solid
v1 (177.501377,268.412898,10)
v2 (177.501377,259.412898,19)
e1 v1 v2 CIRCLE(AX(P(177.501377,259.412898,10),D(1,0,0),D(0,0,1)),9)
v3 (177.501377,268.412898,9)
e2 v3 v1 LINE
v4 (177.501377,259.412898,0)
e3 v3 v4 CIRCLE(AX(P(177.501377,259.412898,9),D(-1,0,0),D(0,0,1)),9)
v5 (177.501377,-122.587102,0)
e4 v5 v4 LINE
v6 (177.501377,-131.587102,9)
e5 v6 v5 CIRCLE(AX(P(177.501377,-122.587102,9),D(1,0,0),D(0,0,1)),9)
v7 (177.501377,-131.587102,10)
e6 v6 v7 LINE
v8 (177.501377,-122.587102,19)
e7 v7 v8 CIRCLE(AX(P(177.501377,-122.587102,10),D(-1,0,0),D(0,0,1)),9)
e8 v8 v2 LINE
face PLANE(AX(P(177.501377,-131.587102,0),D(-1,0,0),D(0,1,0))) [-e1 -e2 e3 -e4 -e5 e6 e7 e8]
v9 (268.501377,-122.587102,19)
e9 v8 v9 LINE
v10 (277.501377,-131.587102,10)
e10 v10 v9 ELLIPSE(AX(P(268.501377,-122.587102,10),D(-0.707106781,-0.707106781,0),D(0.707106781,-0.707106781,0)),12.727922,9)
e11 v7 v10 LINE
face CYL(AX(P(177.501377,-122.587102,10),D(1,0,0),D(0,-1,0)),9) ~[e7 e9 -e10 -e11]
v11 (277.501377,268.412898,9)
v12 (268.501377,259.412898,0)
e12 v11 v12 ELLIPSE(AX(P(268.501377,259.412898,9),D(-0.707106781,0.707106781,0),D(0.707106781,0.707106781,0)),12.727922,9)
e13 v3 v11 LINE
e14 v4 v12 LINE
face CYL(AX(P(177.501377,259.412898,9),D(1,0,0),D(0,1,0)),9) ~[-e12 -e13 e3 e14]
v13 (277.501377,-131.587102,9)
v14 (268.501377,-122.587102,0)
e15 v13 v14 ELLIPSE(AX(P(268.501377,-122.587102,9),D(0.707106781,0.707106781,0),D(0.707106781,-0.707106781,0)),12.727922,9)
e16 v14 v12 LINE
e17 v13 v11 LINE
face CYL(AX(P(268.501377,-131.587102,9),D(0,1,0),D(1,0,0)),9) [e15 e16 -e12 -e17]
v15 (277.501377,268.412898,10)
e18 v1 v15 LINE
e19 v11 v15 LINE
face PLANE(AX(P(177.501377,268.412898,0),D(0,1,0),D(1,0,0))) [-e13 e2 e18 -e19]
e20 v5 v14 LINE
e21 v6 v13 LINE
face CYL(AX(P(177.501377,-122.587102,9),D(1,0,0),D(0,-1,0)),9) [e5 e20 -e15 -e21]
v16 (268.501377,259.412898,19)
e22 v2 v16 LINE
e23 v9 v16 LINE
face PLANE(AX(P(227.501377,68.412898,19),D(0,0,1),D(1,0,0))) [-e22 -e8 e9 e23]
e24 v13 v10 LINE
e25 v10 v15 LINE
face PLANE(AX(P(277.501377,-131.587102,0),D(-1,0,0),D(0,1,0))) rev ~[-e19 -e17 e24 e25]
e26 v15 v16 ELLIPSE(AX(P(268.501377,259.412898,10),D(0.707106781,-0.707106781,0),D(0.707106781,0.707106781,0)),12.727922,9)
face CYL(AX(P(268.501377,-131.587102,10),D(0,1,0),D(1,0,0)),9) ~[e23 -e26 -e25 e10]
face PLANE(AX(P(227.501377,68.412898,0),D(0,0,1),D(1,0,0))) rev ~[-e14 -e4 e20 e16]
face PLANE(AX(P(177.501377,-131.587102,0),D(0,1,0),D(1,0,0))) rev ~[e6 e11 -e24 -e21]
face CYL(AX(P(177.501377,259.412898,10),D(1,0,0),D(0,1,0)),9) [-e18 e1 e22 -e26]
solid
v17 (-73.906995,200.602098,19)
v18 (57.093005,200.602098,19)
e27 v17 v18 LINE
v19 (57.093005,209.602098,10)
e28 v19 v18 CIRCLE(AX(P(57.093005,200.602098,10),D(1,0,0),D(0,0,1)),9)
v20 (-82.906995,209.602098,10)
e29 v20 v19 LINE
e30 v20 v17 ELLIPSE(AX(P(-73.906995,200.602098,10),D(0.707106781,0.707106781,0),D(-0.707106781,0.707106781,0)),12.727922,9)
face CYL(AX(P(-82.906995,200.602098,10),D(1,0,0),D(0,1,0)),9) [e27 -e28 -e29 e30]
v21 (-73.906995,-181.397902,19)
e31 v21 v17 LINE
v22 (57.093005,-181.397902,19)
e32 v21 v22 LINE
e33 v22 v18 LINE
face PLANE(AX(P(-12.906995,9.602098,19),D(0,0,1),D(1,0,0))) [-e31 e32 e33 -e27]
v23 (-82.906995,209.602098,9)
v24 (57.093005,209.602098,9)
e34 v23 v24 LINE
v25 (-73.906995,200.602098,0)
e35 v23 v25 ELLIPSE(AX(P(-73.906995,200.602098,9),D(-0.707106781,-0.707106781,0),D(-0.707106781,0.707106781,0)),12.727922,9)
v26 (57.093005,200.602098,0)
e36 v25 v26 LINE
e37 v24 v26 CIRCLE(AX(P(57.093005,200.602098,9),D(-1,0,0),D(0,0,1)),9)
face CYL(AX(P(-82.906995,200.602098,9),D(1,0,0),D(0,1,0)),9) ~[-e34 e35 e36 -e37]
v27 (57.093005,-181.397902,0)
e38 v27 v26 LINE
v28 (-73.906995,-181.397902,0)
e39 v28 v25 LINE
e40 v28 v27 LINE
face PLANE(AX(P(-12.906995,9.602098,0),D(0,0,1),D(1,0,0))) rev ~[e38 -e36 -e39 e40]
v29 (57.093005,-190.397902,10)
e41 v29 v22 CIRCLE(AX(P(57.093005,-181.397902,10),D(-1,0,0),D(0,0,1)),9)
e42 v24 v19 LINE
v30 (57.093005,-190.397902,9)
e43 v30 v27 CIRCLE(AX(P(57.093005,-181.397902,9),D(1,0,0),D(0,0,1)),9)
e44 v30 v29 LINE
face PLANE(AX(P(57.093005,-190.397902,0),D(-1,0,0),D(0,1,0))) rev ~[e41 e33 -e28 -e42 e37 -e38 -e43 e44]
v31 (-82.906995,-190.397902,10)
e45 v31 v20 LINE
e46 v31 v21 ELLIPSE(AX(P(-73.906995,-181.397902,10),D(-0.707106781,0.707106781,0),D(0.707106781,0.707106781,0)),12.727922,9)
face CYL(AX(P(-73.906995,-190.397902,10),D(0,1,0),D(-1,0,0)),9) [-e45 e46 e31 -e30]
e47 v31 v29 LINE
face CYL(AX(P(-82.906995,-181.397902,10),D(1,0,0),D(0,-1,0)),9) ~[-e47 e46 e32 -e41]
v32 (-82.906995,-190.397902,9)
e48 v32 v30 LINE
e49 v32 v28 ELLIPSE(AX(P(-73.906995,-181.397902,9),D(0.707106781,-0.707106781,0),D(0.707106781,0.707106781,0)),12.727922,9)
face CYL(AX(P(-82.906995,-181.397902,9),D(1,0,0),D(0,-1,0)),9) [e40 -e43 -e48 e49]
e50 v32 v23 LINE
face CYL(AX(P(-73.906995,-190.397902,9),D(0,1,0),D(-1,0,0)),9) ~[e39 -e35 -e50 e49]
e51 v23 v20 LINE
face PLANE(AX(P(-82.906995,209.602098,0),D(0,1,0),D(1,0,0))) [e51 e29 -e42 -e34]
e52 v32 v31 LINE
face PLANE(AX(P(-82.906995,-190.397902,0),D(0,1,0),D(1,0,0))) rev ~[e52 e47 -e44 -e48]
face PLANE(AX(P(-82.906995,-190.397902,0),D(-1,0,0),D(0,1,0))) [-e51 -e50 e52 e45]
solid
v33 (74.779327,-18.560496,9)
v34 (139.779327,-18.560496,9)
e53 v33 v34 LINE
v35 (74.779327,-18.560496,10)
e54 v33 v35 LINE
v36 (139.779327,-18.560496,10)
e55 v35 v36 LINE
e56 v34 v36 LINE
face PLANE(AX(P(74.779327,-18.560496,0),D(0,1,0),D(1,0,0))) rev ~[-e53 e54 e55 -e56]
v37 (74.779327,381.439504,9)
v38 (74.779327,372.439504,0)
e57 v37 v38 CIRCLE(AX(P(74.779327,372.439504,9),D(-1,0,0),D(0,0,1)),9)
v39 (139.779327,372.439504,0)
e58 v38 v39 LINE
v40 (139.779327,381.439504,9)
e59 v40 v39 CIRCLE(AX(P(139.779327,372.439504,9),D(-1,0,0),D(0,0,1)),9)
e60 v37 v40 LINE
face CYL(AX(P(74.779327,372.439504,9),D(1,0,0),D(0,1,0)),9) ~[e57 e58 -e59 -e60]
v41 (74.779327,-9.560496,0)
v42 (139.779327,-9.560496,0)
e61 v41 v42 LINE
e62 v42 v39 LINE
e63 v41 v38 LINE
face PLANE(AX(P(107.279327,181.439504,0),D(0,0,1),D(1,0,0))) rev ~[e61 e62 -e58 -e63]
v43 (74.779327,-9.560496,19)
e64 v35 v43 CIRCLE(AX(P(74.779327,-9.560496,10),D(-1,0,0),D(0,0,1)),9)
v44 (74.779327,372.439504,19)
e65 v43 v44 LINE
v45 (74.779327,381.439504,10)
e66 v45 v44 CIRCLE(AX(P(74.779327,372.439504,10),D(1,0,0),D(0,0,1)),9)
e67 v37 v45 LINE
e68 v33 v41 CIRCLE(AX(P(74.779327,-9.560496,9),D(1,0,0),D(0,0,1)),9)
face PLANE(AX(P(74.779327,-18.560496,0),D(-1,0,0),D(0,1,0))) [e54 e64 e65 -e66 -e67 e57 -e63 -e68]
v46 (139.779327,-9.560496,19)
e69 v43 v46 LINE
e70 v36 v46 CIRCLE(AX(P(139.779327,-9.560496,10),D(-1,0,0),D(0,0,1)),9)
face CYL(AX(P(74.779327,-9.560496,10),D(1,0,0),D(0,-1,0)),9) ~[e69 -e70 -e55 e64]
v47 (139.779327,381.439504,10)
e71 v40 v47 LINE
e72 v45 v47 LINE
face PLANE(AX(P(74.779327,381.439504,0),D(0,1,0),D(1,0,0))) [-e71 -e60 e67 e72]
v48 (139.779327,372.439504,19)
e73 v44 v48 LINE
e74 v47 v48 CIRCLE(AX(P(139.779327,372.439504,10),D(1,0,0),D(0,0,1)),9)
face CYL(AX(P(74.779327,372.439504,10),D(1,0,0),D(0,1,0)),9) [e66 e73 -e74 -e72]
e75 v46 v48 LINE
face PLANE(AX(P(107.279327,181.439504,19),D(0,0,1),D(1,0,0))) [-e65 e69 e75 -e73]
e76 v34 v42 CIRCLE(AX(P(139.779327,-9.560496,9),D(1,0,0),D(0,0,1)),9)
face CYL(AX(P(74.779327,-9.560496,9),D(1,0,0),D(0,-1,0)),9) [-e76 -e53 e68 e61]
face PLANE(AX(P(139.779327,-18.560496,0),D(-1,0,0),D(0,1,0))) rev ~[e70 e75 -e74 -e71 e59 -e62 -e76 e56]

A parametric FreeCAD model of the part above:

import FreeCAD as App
import Part
import Sketcher
Q = App.Units.Quantity


def edges_at(feature, points):
    """Names of the edges that pass closest to the given points."""
    edges = feature.Shape.Edges
    near = lambda p: min(range(len(edges)), key=lambda i: edges[i].distToShape(Part.Vertex(*p))[0])
    return sorted({f"Edge{near(p) + 1}" for p in points})


def add_polygon(sketch, points):
    """Adds a closed chain of lines whose ends are joined by coincident constraints."""
    first, n = sketch.GeometryCount, len(points)
    for a, b in zip(points, points[1:] + points[:1]):
        sketch.addGeometry(Part.LineSegment(App.Vector(*a, 0), App.Vector(*b, 0)), False)
    for i in range(n):
        sketch.addConstraint(Sketcher.Constraint("Coincident", first + i, 2, first + (i + 1) % n, 1))

doc = App.newDocument("Part")
body = doc.addObject("PartDesign::Body", "Body")

# Sketch on XY plane
sketch1 = body.newObject("Sketcher::SketchObject", "Sketch")
sketch1.AttachmentSupport = (doc.getObject("XY_Plane"), [""])
sketch1.MapMode = "FlatFace"
add_polygon(sketch1, [(-83, 210), (-83, -190), (57, -190), (57, 210)])  # lines 0-3
sketch1.addConstraint([
    Sketcher.Constraint("Vertical", 0),
    Sketcher.Constraint("Horizontal", 1),
    Sketcher.Constraint("Vertical", 2),
    Sketcher.Constraint("Horizontal", 3),
    Sketcher.Constraint("DistanceX", 1, 1, 1, 2, Q("140 mm")),
    Sketcher.Constraint("DistanceY", 0, 2, 0, 1, Q("400 mm")),
    Sketcher.Constraint("DistanceY", 0, 2, -1, 1, Q("190.397902 mm")),
    Sketcher.Constraint("DistanceX", 0, 2, -1, 1, Q("82.906995 mm")),
])
pad1 = body.newObject("PartDesign::Pad", "Pad")
pad1.Profile = sketch1
pad1.Length = 19
doc.recompute()

fillet = body.newObject("PartDesign::Fillet", "Fillet")
fillet.Base = (pad1, edges_at(pad1, [
    (-12.907, -190.398, 19),
    (-82.907, 9.602, 19),
    (-12.907, 209.602, 19),
    (-12.907, -190.398, 0),
    (-82.907, 9.602, 0),
    (-12.907, 209.602, 0),
]))
fillet.Radius = 9
body2 = doc.addObject("PartDesign::Body", "Body001")

# Sketch on XY plane
sketch2 = body2.newObject("Sketcher::SketchObject", "Sketch001")
sketch2.AttachmentSupport = (doc.getObject("XY_Plane001"), [""])
sketch2.MapMode = "FlatFace"
add_polygon(sketch2, [(75, 381), (75, -19), (140, -19), (140, 381)])  # lines 0-3
sketch2.addConstraint([
    Sketcher.Constraint("Vertical", 0),
    Sketcher.Constraint("Horizontal", 1),
    Sketcher.Constraint("Vertical", 2),
    Sketcher.Constraint("Horizontal", 3),
    Sketcher.Constraint("DistanceX", 1, 1, 1, 2, Q("65 mm")),
    Sketcher.Constraint("DistanceY", 0, 2, 0, 1, Q("400 mm")),
    Sketcher.Constraint("DistanceX", -1, 1, 0, 2, Q("74.779327 mm")),
    Sketcher.Constraint("DistanceY", 0, 2, -1, 1, Q("18.560496 mm")),
])
pad2 = body2.newObject("PartDesign::Pad", "Pad001")
pad2.Profile = sketch2
pad2.Length = 19
doc.recompute()

fillet2 = body2.newObject("PartDesign::Fillet", "Fillet001")
fillet2.Base = (pad2, edges_at(pad2, [
    (107.279, 381.44, 19),
    (107.279, 381.44, 0),
    (107.279, -18.56, 19),
    (107.279, -18.56, 0),
]))
fillet2.Radius = 9
body3 = doc.addObject("PartDesign::Body", "Body002")

# Sketch on XY plane
sketch3 = body3.newObject("Sketcher::SketchObject", "Sketch002")
sketch3.AttachmentSupport = (doc.getObject("XY_Plane002"), [""])
sketch3.MapMode = "FlatFace"
add_polygon(sketch3, [(178, 268), (178, -132), (278, -132), (278, 268)])  # lines 0-3
sketch3.addConstraint([
    Sketcher.Constraint("Vertical", 0),
    Sketcher.Constraint("Horizontal", 1),
    Sketcher.Constraint("Vertical", 2),
    Sketcher.Constraint("Horizontal", 3),
    Sketcher.Constraint("DistanceX", 1, 1, 1, 2, Q("100 mm")),
    Sketcher.Constraint("DistanceY", 0, 2, 0, 1, Q("400 mm")),
    Sketcher.Constraint("DistanceY", 0, 2, -1, 1, Q("131.587102 mm")),
    Sketcher.Constraint("DistanceX", -1, 1, 0, 2, Q("177.501377 mm")),
])
pad3 = body3.newObject("PartDesign::Pad", "Pad002")
pad3.Profile = sketch3
pad3.Length = 19
doc.recompute()

fillet3 = body3.newObject("PartDesign::Fillet", "Fillet002")
fillet3.Base = (pad3, edges_at(pad3, [
    (227.501, -131.587, 19),
    (227.501, -131.587, 0),
    (277.501, 68.413, 19),
    (277.501, 68.413, 0),
    (227.501, 268.413, 19),
    (227.501, 268.413, 0),
]))
fillet3.Radius = 9

doc.recompute()
